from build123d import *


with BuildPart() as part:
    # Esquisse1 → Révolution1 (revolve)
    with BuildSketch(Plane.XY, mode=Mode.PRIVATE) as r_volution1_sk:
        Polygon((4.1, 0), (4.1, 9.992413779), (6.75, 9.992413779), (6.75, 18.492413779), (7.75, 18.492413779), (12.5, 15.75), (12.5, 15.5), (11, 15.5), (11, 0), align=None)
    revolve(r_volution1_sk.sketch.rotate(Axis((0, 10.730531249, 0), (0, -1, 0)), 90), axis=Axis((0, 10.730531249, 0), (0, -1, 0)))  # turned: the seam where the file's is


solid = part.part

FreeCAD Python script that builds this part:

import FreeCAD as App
import Part
import Sketcher
Q = App.Units.Quantity

doc = App.newDocument("Part")
body = doc.addObject("PartDesign::Body", "Body")

sketch1 = doc.addObject("Sketcher::SketchObject", "Sketch")
body.addObject(sketch1)
sketch1.AttachmentSupport = (doc.XY_Plane, [""])
sketch1.MapMode = "FlatFace"
sketch1.addGeometry(Part.LineSegment(App.Vector(4.1, 9.99, 0), App.Vector(4.1, 0, 0)), False)
sketch1.addGeometry(Part.LineSegment(App.Vector(4.1, 0, 0), App.Vector(11, 0, 0)), False)
sketch1.addGeometry(Part.LineSegment(App.Vector(11, 0, 0), App.Vector(11, 15.5, 0)), False)
sketch1.addGeometry(Part.LineSegment(App.Vector(11, 15.5, 0), App.Vector(12.5, 15.5, 0)), False)
sketch1.addGeometry(Part.LineSegment(App.Vector(12.5, 15.5, 0), App.Vector(12.5, 15.75, 0)), False)
sketch1.addGeometry(Part.LineSegment(App.Vector(12.5, 15.75, 0), App.Vector(7.75, 18.49, 0)), False)
sketch1.addGeometry(Part.LineSegment(App.Vector(7.75, 18.49, 0), App.Vector(6.75, 18.49, 0)), False)
sketch1.addGeometry(Part.LineSegment(App.Vector(6.75, 18.49, 0), App.Vector(6.75, 9.99, 0)), False)
sketch1.addGeometry(Part.LineSegment(App.Vector(6.75, 9.99, 0), App.Vector(4.1, 9.99, 0)), False)
sketch1.addConstraint(Sketcher.Constraint("Coincident", 0, 2, 1, 1))
sketch1.addConstraint(Sketcher.Constraint("Coincident", 1, 2, 2, 1))
sketch1.addConstraint(Sketcher.Constraint("Coincident", 2, 2, 3, 1))
sketch1.addConstraint(Sketcher.Constraint("Coincident", 3, 2, 4, 1))
sketch1.addConstraint(Sketcher.Constraint("Coincident", 4, 2, 5, 1))
sketch1.addConstraint(Sketcher.Constraint("Coincident", 5, 2, 6, 1))
sketch1.addConstraint(Sketcher.Constraint("Coincident", 6, 2, 7, 1))
sketch1.addConstraint(Sketcher.Constraint("Coincident", 7, 2, 8, 1))
sketch1.addConstraint(Sketcher.Constraint("Coincident", 8, 2, 0, 1))
sketch1.addConstraint(Sketcher.Constraint("Vertical", 0))
sketch1.addConstraint(Sketcher.Constraint("Horizontal", 1))
sketch1.addConstraint(Sketcher.Constraint("Vertical", 2))
sketch1.addConstraint(Sketcher.Constraint("Horizontal", 3))
sketch1.addConstraint(Sketcher.Constraint("Vertical", 4))
sketch1.addConstraint(Sketcher.Constraint("Horizontal", 6))
sketch1.addConstraint(Sketcher.Constraint("Vertical", 7))
sketch1.addConstraint(Sketcher.Constraint("Horizontal", 8))
sketch1.addConstraint(Sketcher.Constraint("PointOnObject", 0, 2, -1))
sketch1.addConstraint(Sketcher.Constraint("DistanceX", 6, 2, 6, 1, Q("1 mm")))
sketch1.addConstraint(Sketcher.Constraint("Angle", 5, Q("150 deg")))
sketch1.addConstraint(Sketcher.Constraint("DistanceX", 1, 1, 1, 2, Q("6.9 mm")))
sketch1.addConstraint(Sketcher.Constraint("DistanceX", 3, 1, 3, 2, Q("1.5 mm")))
sketch1.addConstraint(Sketcher.Constraint("DistanceY", 2, 1, 2, 2, Q("15.5 mm")))
sketch1.addConstraint(Sketcher.Constraint("DistanceY", 7, 2, 7, 1, Q("8.5 mm")))
sketch1.addConstraint(Sketcher.Constraint("DistanceX", -1, 1, 1, 2, Q("11 mm")))
sketch1.addConstraint(Sketcher.Constraint("DistanceX", 8, 2, 8, 1, Q("2.65 mm")))
sketch1.addConstraint(Sketcher.Constraint("DistanceY", 4, 1, 4, 2, Q("0.25 mm")))
revolution = doc.addObject("PartDesign::Revolution", "Revolution")
body.addObject(revolution)
revolution.Profile = sketch1
revolution.ReferenceAxis = (sketch1, ["V_Axis"])
revolution.Angle = 360

doc.recompute()
